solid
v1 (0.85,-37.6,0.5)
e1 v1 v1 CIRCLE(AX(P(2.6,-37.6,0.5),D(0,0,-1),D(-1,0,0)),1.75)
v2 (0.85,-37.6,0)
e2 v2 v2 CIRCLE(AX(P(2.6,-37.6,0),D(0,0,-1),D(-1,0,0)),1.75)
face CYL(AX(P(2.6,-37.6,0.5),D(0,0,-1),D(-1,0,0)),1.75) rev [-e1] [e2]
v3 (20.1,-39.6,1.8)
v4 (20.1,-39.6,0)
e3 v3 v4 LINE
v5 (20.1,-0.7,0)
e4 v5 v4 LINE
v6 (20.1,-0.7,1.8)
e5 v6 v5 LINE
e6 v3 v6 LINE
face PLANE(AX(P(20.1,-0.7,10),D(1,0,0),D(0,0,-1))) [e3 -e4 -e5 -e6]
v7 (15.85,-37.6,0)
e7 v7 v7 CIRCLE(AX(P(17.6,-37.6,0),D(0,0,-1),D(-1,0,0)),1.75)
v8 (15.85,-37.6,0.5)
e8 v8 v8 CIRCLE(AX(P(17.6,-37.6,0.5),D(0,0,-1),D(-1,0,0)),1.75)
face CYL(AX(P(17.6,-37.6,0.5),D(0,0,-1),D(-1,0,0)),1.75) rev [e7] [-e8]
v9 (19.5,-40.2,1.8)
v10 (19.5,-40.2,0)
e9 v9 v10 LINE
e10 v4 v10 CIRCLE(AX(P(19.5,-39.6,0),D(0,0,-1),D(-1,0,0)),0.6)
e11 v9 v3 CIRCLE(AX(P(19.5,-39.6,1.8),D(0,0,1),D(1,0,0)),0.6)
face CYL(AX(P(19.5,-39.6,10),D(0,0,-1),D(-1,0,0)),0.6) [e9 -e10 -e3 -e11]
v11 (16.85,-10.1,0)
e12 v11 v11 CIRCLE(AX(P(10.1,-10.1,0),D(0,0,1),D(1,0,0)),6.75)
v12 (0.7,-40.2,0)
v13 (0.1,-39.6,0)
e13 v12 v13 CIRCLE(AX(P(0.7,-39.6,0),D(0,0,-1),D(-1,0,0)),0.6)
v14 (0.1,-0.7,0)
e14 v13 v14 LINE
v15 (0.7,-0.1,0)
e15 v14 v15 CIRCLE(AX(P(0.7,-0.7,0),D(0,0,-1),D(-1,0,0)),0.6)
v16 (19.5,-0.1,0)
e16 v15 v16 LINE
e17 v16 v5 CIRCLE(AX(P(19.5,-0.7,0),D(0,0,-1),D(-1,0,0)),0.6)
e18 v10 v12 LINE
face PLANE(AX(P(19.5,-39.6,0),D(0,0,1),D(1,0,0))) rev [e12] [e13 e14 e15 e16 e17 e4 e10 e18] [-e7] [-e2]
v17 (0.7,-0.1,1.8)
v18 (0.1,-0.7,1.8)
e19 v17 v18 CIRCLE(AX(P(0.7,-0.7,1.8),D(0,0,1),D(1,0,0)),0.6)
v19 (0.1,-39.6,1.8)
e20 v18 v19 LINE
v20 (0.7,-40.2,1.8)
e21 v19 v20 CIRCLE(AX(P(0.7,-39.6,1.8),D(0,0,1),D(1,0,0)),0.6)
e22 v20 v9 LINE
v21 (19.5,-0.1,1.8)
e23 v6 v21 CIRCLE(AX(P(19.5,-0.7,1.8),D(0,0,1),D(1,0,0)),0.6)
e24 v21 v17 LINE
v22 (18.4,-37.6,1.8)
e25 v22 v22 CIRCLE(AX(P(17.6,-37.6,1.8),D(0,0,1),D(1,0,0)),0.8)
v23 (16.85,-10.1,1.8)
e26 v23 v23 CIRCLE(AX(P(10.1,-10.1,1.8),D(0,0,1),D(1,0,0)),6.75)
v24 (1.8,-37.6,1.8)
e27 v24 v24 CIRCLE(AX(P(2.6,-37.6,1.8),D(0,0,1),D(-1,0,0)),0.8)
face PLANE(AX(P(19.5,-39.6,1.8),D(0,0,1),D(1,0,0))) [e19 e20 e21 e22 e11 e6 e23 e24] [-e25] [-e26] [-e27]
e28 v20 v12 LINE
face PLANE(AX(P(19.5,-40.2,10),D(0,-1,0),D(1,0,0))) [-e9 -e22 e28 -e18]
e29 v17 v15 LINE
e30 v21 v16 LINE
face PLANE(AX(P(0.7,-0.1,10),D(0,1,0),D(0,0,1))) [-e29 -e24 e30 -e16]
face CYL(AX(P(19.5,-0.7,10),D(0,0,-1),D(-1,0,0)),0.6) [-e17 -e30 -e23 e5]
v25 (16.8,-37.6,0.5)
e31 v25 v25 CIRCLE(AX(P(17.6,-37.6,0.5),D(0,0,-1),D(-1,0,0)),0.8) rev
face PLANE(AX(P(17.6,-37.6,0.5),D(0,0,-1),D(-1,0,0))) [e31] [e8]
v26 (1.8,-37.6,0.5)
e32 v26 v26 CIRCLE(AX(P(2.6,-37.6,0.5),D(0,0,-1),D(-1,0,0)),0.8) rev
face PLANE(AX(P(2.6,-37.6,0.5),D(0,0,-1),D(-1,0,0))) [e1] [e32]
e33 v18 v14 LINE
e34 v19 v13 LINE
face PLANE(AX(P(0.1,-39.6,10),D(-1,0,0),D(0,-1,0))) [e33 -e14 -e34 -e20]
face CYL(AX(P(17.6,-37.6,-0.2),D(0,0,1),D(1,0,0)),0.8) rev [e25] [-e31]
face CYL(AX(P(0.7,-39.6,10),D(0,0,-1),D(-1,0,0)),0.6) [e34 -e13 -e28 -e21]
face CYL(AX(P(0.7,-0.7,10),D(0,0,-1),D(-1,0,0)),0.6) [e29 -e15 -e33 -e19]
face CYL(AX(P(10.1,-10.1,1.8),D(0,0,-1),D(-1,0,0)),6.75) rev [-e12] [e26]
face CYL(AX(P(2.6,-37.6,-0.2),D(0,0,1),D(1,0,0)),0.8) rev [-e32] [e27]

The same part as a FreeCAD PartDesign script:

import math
import FreeCAD as App
import Part
import Sketcher
from FreeCAD import Vector

doc = App.newDocument("Part")
body = doc.addObject("PartDesign::Body", "Body")

sketch1 = body.newObject("Sketcher::SketchObject", "Sketch")
sketch1.AttachmentSupport = (doc.getObject("XY_Plane"), [""])
sketch1.MapMode = "FlatFace"
sketch1.addGeometry(Part.LineSegment(Vector(19.5, 0, 0), Vector(0.7, 0, 0)), False)
sketch1.addGeometry(Part.ArcOfCircle(Part.Circle(Vector(0.7, -0.7, 0), Vector(0, 0, 1), 0.7), math.radians(90), math.radians(180)), False)
sketch1.addGeometry(Part.LineSegment(Vector(0, -0.7, 0), Vector(0, -39.6, 0)), False)
sketch1.addGeometry(Part.ArcOfCircle(Part.Circle(Vector(0.7, -39.6, 0), Vector(0, 0, 1), 0.7), math.radians(180), math.radians(270)), False)
sketch1.addGeometry(Part.LineSegment(Vector(0.7, -40.3, 0), Vector(19.5, -40.3, 0)), False)
sketch1.addGeometry(Part.ArcOfCircle(Part.Circle(Vector(19.5, -39.6, 0), Vector(0, 0, 1), 0.7), math.radians(-90), math.radians(0)), False)
sketch1.addGeometry(Part.LineSegment(Vector(20.2, -39.6, 0), Vector(20.2, -0.7, 0)), False)
sketch1.addGeometry(Part.ArcOfCircle(Part.Circle(Vector(19.5, -0.7, 0), Vector(0, 0, 1), 0.7), math.radians(0), math.radians(90)), False)
sketch1.addGeometry(Part.Circle(Vector(10.1, -10.1, 0), Vector(0, 0, 1), 6.75), False)
sketch1.addConstraint(Sketcher.Constraint("Tangent", 0, 2, 1, 1))
sketch1.addConstraint(Sketcher.Constraint("Tangent", 1, 2, 2, 1))
sketch1.addConstraint(Sketcher.Constraint("Tangent", 2, 2, 3, 1))
sketch1.addConstraint(Sketcher.Constraint("Tangent", 3, 2, 4, 1))
sketch1.addConstraint(Sketcher.Constraint("Tangent", 4, 2, 5, 1))
sketch1.addConstraint(Sketcher.Constraint("Tangent", 5, 2, 6, 1))
sketch1.addConstraint(Sketcher.Constraint("Tangent", 6, 2, 7, 1))
sketch1.addConstraint(Sketcher.Constraint("Tangent", 7, 2, 0, 1))
sketch1.addConstraint(Sketcher.Constraint("Horizontal", 0))
sketch1.addConstraint(Sketcher.Constraint("Vertical", 2))
sketch1.addConstraint(Sketcher.Constraint("Horizontal", 4))
sketch1.addConstraint(Sketcher.Constraint("Vertical", 6))
sketch1.addConstraint(Sketcher.Constraint("Equal", 1, 3))
sketch1.addConstraint(Sketcher.Constraint("Equal", 3, 5))
sketch1.addConstraint(Sketcher.Constraint("Equal", 5, 7))
sketch1.addConstraint(Sketcher.Constraint("PointOnObject", 0, 2, -1))
sketch1.addConstraint(Sketcher.Constraint("PointOnObject", 1, 2, -2))
sketch1.addConstraint(Sketcher.Constraint("Diameter", 8, 13.5))
sketch1.addConstraint(Sketcher.Constraint("Radius", 1, 0.7))
sketch1.addConstraint(Sketcher.Constraint("DistanceX", 0, 2, 0, 1, 18.8))
sketch1.addConstraint(Sketcher.Constraint("DistanceY", 2, 2, 2, 1, 38.9))
sketch1.addConstraint(Sketcher.Constraint("DistanceX", -1, 1, 8, 3, 10.1))
sketch1.addConstraint(Sketcher.Constraint("DistanceY", 8, 3, -1, 1, 10.1))
pad1 = body.newObject("PartDesign::Pad", "Pad")
pad1.Profile = sketch1
pad1.Length = 1.8

sketch2 = body.newObject("Sketcher::SketchObject", "Sketch001")
sketch2.AttachmentSupport = (doc.getObject("XY_Plane"), [""])
sketch2.MapMode = "FlatFace"
sketch2.AttachmentOffset = App.Placement(Vector(0, 0, 1.8), App.Rotation())
sketch2.addGeometry(Part.Circle(Vector(17.6, -2.6, 0), Vector(0, 0, 1), 0.8), False)
sketch2.addGeometry(Part.Circle(Vector(17.6, -37.6, 0), Vector(0, 0, 1), 0.8), False)
sketch2.addGeometry(Part.Circle(Vector(2.6, -37.6, 0), Vector(0, 0, 1), 0.8), False)
sketch2.addGeometry(Part.Circle(Vector(2.6, -2.6, 0), Vector(0, 0, 1), 0.8), False)
sketch2.addConstraint(Sketcher.Constraint("Equal", 0, 1))
sketch2.addConstraint(Sketcher.Constraint("Equal", 1, 2))
sketch2.addConstraint(Sketcher.Constraint("Equal", 2, 3))
sketch2.addConstraint(Sketcher.Constraint("Horizontal", 1, 3, 2, 3))
sketch2.addConstraint(Sketcher.Constraint("Horizontal", 0, 3, 3, 3))
sketch2.addConstraint(Sketcher.Constraint("Vertical", 0, 3, 1, 3))
sketch2.addConstraint(Sketcher.Constraint("Vertical", 2, 3, 3, 3))
sketch2.addConstraint(Sketcher.Constraint("Diameter", 0, 1.6))
sketch2.addConstraint(Sketcher.Constraint("DistanceY", 1, 3, 0, 3, 35.0))
sketch2.addConstraint(Sketcher.Constraint("DistanceX", 2, 3, 1, 3, 15.0))
sketch2.addConstraint(Sketcher.Constraint("DistanceX", -1, 1, 0, 3, 17.6))
sketch2.addConstraint(Sketcher.Constraint("DistanceY", 0, 3, -1, 1, 2.6))
pocket1 = body.newObject("PartDesign::Pocket", "Pocket")
pocket1.Profile = sketch2
pocket1.Length = 2

sketch3 = body.newObject("Sketcher::SketchObject", "Sketch002")
sketch3.AttachmentSupport = (doc.getObject("XY_Plane"), [""])
sketch3.MapMode = "FlatFace"
sketch3.addGeometry(Part.Circle(Vector(17.6, -2.6, 0), Vector(0, 0, 1), 1.75), False)
sketch3.addGeometry(Part.Circle(Vector(2.6, -2.6, 0), Vector(0, 0, 1), 1.75), False)
sketch3.addGeometry(Part.Circle(Vector(17.6, -37.6, 0), Vector(0, 0, 1), 1.75), False)
sketch3.addGeometry(Part.Circle(Vector(2.6, -37.6, 0), Vector(0, 0, 1), 1.75), False)
sketch3.addConstraint(Sketcher.Constraint("Equal", 0, 1))
sketch3.addConstraint(Sketcher.Constraint("Equal", 1, 2))
sketch3.addConstraint(Sketcher.Constraint("Equal", 2, 3))
sketch3.addConstraint(Sketcher.Constraint("Horizontal", 0, 3, 1, 3))
sketch3.addConstraint(Sketcher.Constraint("Horizontal", 2, 3, 3, 3))
sketch3.addConstraint(Sketcher.Constraint("Vertical", 0, 3, 2, 3))
sketch3.addConstraint(Sketcher.Constraint("Vertical", 1, 3, 3, 3))
sketch3.addConstraint(Sketcher.Constraint("Diameter", 0, 3.5))
sketch3.addConstraint(Sketcher.Constraint("DistanceX", 1, 3, 0, 3, 15.0))
sketch3.addConstraint(Sketcher.Constraint("DistanceY", 2, 3, 0, 3, 35.0))
sketch3.addConstraint(Sketcher.Constraint("DistanceX", -1, 1, 0, 3, 17.6))
sketch3.addConstraint(Sketcher.Constraint("DistanceY", 0, 3, -1, 1, 2.6))
pocket2 = body.newObject("PartDesign::Pocket", "Pocket001")
pocket2.Profile = sketch3
pocket2.Length = 0.5
pocket2.Reversed = True

sketch4 = body.newObject("Sketcher::SketchObject", "Sketch003")
sketch4.AttachmentSupport = (doc.getObject("XY_Plane"), [""])
sketch4.MapMode = "FlatFace"
sketch4.addGeometry(Part.LineSegment(Vector(19.5, -40.3, 0), Vector(0.7, -40.3, 0)), False)
sketch4.addGeometry(Part.ArcOfCircle(Part.Circle(Vector(0.7, -39.6, 0), Vector(0, 0, 1), 0.7), math.radians(180), math.radians(270)), False)
sketch4.addGeometry(Part.LineSegment(Vector(0, -39.6, 0), Vector(0, -0.7, 0)), False)
sketch4.addGeometry(Part.ArcOfCircle(Part.Circle(Vector(0.7, -0.7, 0), Vector(0, 0, 1), 0.7), math.radians(90), math.radians(180)), False)
sketch4.addGeometry(Part.LineSegment(Vector(0.7, 0, 0), Vector(19.5, 0, 0)), False)
sketch4.addGeometry(Part.ArcOfCircle(Part.Circle(Vector(19.5, -0.7, 0), Vector(0, 0, 1), 0.7), math.radians(0), math.radians(90)), False)
sketch4.addGeometry(Part.LineSegment(Vector(20.2, -0.7, 0), Vector(20.2, -39.6, 0)), False)
sketch4.addGeometry(Part.ArcOfCircle(Part.Circle(Vector(19.5, -39.6, 0), Vector(0, 0, 1), 0.7), math.radians(-90), math.radians(0)), False)
sketch4.addGeometry(Part.LineSegment(Vector(19.5, -0.1, 0), Vector(0.7, -0.1, 0)), False)
sketch4.addGeometry(Part.ArcOfCircle(Part.Circle(Vector(0.7, -0.7, 0), Vector(0, 0, 1), 0.6), math.radians(90), math.radians(180)), False)
sketch4.addGeometry(Part.LineSegment(Vector(0.1, -0.7, 0), Vector(0.1, -39.6, 0)), False)
sketch4.addGeometry(Part.ArcOfCircle(Part.Circle(Vector(0.7, -39.6, 0), Vector(0, 0, 1), 0.6), math.radians(180), math.radians(270)), False)
sketch4.addGeometry(Part.LineSegment(Vector(0.7, -40.2, 0), Vector(19.5, -40.2, 0)), False)
sketch4.addGeometry(Part.ArcOfCircle(Part.Circle(Vector(19.5, -39.6, 0), Vector(0, 0, 1), 0.6), math.radians(-90), math.radians(0)), False)
sketch4.addGeometry(Part.LineSegment(Vector(20.1, -39.6, 0), Vector(20.1, -0.7, 0)), False)
sketch4.addGeometry(Part.ArcOfCircle(Part.Circle(Vector(19.5, -0.7, 0), Vector(0, 0, 1), 0.6), math.radians(0), math.radians(90)), False)
sketch4.addConstraint(Sketcher.Constraint("Tangent", 0, 2, 1, 2))
sketch4.addConstraint(Sketcher.Constraint("Tangent", 1, 1, 2, 1))
sketch4.addConstraint(Sketcher.Constraint("Tangent", 2, 2, 3, 2))
sketch4.addConstraint(Sketcher.Constraint("Tangent", 3, 1, 4, 1))
sketch4.addConstraint(Sketcher.Constraint("Tangent", 4, 2, 5, 2))
sketch4.addConstraint(Sketcher.Constraint("Tangent", 5, 1, 6, 1))
sketch4.addConstraint(Sketcher.Constraint("Tangent", 6, 2, 7, 2))
sketch4.addConstraint(Sketcher.Constraint("Tangent", 7, 1, 0, 1))
sketch4.addConstraint(Sketcher.Constraint("Tangent", 8, 2, 9, 1))
sketch4.addConstraint(Sketcher.Constraint("Tangent", 9, 2, 10, 1))
sketch4.addConstraint(Sketcher.Constraint("Tangent", 10, 2, 11, 1))
sketch4.addConstraint(Sketcher.Constraint("Tangent", 11, 2, 12, 1))
sketch4.addConstraint(Sketcher.Constraint("Tangent", 12, 2, 13, 1))
sketch4.addConstraint(Sketcher.Constraint("Tangent", 13, 2, 14, 1))
sketch4.addConstraint(Sketcher.Constraint("Tangent", 14, 2, 15, 1))
sketch4.addConstraint(Sketcher.Constraint("Tangent", 15, 2, 8, 1))
sketch4.addConstraint(Sketcher.Constraint("Horizontal", 0))
sketch4.addConstraint(Sketcher.Constraint("Vertical", 2))
sketch4.addConstraint(Sketcher.Constraint("Horizontal", 4))
sketch4.addConstraint(Sketcher.Constraint("Vertical", 6))
sketch4.addConstraint(Sketcher.Constraint("Horizontal", 8))
sketch4.addConstraint(Sketcher.Constraint("Vertical", 10))
sketch4.addConstraint(Sketcher.Constraint("Horizontal", 12))
sketch4.addConstraint(Sketcher.Constraint("Vertical", 14))
sketch4.addConstraint(Sketcher.Constraint("Coincident", 9, 3, 3, 3))
sketch4.addConstraint(Sketcher.Constraint("Coincident", 11, 3, 1, 3))
sketch4.addConstraint(Sketcher.Constraint("Coincident", 13, 3, 7, 3))
sketch4.addConstraint(Sketcher.Constraint("Equal", 1, 3))
sketch4.addConstraint(Sketcher.Constraint("Equal", 3, 5))
sketch4.addConstraint(Sketcher.Constraint("Equal", 5, 7))
sketch4.addConstraint(Sketcher.Constraint("Equal", 13, 15))
sketch4.addConstraint(Sketcher.Constraint("PointOnObject", 1, 1, -2))
sketch4.addConstraint(Sketcher.Constraint("PointOnObject", 3, 1, -1))
sketch4.addConstraint(Sketcher.Constraint("Radius", 1, 0.7))
sketch4.addConstraint(Sketcher.Constraint("Radius", 9, 0.6))
sketch4.addConstraint(Sketcher.Constraint("DistanceX", 0, 2, 0, 1, 18.8))
sketch4.addConstraint(Sketcher.Constraint("DistanceY", 2, 1, 2, 2, 38.9))
pocket3 = body.newObject("PartDesign::Pocket", "Pocket002")
pocket3.Profile = sketch4
pocket3.Length = 10
pocket3.Reversed = True

sketch5 = body.newObject("Sketcher::SketchObject", "Sketch004")
sketch5.AttachmentSupport = (doc.getObject("XY_Plane"), [""])
sketch5.MapMode = "FlatFace"
sketch5.addGeometry(Part.Circle(Vector(17.6, -2.6, 0), Vector(0, 0, 1), 1.75), False)
sketch5.addGeometry(Part.Circle(Vector(2.6, -2.6, 0), Vector(0, 0, 1), 1.75), False)
sketch5.addConstraint(Sketcher.Constraint("Equal", 0, 1))
sketch5.addConstraint(Sketcher.Constraint("Horizontal", 0, 3, 1, 3))
sketch5.addConstraint(Sketcher.Constraint("Diameter", 0, 3.5))
sketch5.addConstraint(Sketcher.Constraint("DistanceX", 1, 3, 0, 3, 15.0))
sketch5.addConstraint(Sketcher.Constraint("DistanceX", -1, 1, 0, 3, 17.6))
sketch5.addConstraint(Sketcher.Constraint("DistanceY", 0, 3, -1, 1, 2.6))
pad2 = body.newObject("PartDesign::Pad", "Pad001")
pad2.Profile = sketch5
pad2.Length = 1.8

doc.recompute()
